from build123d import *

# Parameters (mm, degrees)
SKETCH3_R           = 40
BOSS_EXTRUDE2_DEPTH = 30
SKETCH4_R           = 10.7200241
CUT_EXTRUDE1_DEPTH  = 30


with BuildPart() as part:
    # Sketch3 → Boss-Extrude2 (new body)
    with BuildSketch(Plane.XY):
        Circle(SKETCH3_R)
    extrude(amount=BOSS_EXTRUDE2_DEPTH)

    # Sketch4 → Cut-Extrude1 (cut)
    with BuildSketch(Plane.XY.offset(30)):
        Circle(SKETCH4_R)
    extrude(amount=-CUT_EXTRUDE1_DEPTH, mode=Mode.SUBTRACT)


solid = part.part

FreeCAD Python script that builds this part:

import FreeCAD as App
import Part
import Sketcher

doc = App.newDocument("Part")
body = doc.addObject("PartDesign::Body", "Body")

sketch1 = body.newObject("Sketcher::SketchObject", "Sketch")
sketch1.AttachmentSupport = (doc.getObject("XY_Plane"), [""])
sketch1.MapMode = "FlatFace"
sketch1.addGeometry(Part.Circle(App.Vector(0, 0, 0), App.Vector(0, 0, 1), 40), False)
sketch1.addConstraint([
    Sketcher.Constraint("Coincident", 0, 3, -1, 1),
    Sketcher.Constraint("Diameter", 0, 80.0),
])
pad1 = body.newObject("PartDesign::Pad", "Pad")
pad1.Profile = sketch1
pad1.Length = 30

sketch2 = body.newObject("Sketcher::SketchObject", "Sketch001")
sketch2.AttachmentSupport = (doc.getObject("XY_Plane"), [""])
sketch2.MapMode = "FlatFace"
sketch2.AttachmentOffset = App.Placement(App.Vector(0, 0, 30), App.Rotation())
sketch2.addGeometry(Part.Circle(App.Vector(0, 0, 0), App.Vector(0, 0, 1), 11), False)
sketch2.addConstraint([
    Sketcher.Constraint("Coincident", 0, 3, -1, 1),
    Sketcher.Constraint("Diameter", 0, 21.440048),
])
pocket1 = body.newObject("PartDesign::Pocket", "Pocket")
pocket1.Profile = sketch2
pocket1.Length = 30

doc.recompute()
